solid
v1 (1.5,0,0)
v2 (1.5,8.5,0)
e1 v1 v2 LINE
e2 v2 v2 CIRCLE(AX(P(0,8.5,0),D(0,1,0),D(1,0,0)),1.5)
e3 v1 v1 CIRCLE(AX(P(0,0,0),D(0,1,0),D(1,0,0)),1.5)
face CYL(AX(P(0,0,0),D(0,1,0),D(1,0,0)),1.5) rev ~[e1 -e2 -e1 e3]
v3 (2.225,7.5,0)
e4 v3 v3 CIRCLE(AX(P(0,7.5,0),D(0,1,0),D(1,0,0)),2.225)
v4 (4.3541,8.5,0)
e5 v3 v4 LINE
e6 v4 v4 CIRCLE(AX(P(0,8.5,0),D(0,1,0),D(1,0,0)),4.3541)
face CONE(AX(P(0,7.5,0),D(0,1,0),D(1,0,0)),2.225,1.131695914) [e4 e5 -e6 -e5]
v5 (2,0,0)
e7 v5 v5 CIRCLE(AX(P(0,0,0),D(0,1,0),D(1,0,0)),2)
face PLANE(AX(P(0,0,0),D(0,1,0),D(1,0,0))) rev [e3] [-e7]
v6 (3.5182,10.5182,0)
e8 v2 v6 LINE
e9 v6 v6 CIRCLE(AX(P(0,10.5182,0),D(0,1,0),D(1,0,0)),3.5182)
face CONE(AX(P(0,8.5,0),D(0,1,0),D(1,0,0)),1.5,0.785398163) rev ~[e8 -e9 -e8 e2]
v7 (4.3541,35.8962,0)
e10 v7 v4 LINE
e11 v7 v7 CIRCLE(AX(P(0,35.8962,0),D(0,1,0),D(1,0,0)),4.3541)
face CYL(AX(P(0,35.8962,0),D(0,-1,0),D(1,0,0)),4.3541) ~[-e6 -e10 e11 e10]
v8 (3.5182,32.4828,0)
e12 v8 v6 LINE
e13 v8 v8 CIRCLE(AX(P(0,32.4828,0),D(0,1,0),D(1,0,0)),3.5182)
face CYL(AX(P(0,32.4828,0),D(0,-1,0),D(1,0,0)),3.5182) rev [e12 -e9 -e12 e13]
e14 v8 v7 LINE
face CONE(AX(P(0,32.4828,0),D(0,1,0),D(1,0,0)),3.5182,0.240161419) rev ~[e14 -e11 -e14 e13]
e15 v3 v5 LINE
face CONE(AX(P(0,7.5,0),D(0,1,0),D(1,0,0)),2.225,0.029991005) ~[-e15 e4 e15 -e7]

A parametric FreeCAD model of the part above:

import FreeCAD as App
import Part
import Sketcher
Q = App.Units.Quantity

doc = App.newDocument("Part")
body = doc.addObject("PartDesign::Body", "Body")

# Sketch on XY plane
sketch1 = body.newObject("Sketcher::SketchObject", "Sketch")
sketch1.AttachmentSupport = (doc.getObject("XY_Plane"), [""])
sketch1.MapMode = "FlatFace"
sketch1.addGeometry([
    Part.LineSegment(App.Vector(1.5, 8.5, 0), App.Vector(1.5, 0, 0)),  # 0
    Part.LineSegment(App.Vector(1.5, 0, 0), App.Vector(2, 0, 0)),  # 1
    Part.LineSegment(App.Vector(2, 0, 0), App.Vector(2.2, 7.5, 0)),  # 2
    Part.LineSegment(App.Vector(2.2, 7.5, 0), App.Vector(4.4, 8.5, 0)),  # 3
    Part.LineSegment(App.Vector(4.4, 8.5, 0), App.Vector(4.4, 35.9, 0)),  # 4
    Part.LineSegment(App.Vector(4.4, 35.9, 0), App.Vector(3.5, 32.5, 0)),  # 5
    Part.LineSegment(App.Vector(3.5, 32.5, 0), App.Vector(3.5, 10.5, 0)),  # 6
    Part.LineSegment(App.Vector(3.5, 10.5, 0), App.Vector(1.5, 8.5, 0)),  # 7
], False)
sketch1.addConstraint([
    Sketcher.Constraint("Coincident", 0, 2, 1, 1),
    Sketcher.Constraint("Coincident", 1, 2, 2, 1),
    Sketcher.Constraint("Coincident", 2, 2, 3, 1),
    Sketcher.Constraint("Coincident", 3, 2, 4, 1),
    Sketcher.Constraint("Coincident", 4, 2, 5, 1),
    Sketcher.Constraint("Coincident", 5, 2, 6, 1),
    Sketcher.Constraint("Coincident", 6, 2, 7, 1),
    Sketcher.Constraint("Coincident", 7, 2, 0, 1),
    Sketcher.Constraint("Vertical", 0),
    Sketcher.Constraint("Horizontal", 1),
    Sketcher.Constraint("Vertical", 4),
    Sketcher.Constraint("Vertical", 6),
    Sketcher.Constraint("PointOnObject", 0, 2, -1),
    Sketcher.Constraint("Horizontal", 3, 2, 7, 2),
    Sketcher.Constraint("DistanceY", 0, 2, 0, 1, 8.5),
    Sketcher.Constraint("DistanceX", -1, 1, 1, 2, 2.0),
    Sketcher.Constraint("Angle", 7, Q("-135 deg")),
    Sketcher.Constraint("DistanceX", 1, 1, 1, 2, 0.5),
    Sketcher.Constraint("DistanceY", 2, 2, 3, 2, 1.0),
    Sketcher.Constraint("Angle", 5, Q("-103.7602 deg")),
    Sketcher.Constraint("DistanceY", 4, 1, 4, 2, 27.3962),
    Sketcher.Constraint("DistanceY", 6, 2, 6, 1, 21.9646),
    Sketcher.Constraint("DistanceX", -1, 1, 2, 2, 2.225),
    Sketcher.Constraint("DistanceX", -1, 1, 3, 2, 4.354),
])
revolution = body.newObject("PartDesign::Revolution", "Revolution")
revolution.Profile = sketch1
revolution.ReferenceAxis = (sketch1, ["V_Axis"])
revolution.Angle = 360

doc.recompute()
